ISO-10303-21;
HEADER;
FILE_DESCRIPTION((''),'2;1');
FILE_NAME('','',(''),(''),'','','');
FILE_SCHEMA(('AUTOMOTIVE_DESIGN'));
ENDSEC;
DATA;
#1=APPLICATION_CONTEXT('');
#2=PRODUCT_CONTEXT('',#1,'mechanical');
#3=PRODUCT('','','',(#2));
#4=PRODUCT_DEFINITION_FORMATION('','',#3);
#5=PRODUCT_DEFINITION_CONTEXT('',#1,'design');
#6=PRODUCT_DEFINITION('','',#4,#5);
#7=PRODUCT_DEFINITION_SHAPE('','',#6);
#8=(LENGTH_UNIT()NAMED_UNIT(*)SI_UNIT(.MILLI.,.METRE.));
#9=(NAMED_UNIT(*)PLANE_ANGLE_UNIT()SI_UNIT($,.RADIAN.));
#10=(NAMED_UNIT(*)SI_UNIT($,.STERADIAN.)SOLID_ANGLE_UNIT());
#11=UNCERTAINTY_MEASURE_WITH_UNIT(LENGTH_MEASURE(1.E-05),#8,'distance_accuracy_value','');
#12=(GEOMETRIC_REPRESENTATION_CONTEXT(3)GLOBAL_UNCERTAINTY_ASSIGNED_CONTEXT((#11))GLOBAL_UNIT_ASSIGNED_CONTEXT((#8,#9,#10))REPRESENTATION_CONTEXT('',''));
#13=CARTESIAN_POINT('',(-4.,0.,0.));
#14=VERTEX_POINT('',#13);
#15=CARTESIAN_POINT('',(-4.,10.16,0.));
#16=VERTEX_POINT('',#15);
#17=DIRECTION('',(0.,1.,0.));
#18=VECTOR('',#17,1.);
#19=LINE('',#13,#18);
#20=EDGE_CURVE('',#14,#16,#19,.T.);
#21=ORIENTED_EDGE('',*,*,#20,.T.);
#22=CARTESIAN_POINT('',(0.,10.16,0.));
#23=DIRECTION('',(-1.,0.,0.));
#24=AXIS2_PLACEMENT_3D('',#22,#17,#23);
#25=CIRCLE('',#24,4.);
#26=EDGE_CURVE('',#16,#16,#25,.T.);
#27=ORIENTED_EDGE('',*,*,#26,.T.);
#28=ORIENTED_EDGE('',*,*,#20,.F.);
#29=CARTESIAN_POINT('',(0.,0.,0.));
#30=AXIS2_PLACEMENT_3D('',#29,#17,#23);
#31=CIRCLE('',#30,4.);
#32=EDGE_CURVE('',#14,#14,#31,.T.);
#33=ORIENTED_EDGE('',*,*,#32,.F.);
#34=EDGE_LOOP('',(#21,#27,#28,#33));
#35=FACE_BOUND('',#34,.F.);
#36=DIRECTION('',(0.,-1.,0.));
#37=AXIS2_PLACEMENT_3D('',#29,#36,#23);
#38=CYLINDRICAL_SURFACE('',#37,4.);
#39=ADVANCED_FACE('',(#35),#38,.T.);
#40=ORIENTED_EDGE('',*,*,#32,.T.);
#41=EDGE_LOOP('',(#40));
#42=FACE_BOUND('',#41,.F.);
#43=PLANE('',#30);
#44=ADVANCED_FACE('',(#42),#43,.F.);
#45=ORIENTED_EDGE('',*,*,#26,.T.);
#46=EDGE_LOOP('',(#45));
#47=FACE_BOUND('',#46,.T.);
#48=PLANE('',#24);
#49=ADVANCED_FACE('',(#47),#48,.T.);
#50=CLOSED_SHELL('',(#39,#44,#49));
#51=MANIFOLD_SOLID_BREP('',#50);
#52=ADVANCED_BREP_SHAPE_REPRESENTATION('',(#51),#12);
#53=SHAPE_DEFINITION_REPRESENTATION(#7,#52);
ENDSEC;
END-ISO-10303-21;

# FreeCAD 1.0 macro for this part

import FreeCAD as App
import Part
import Sketcher
from FreeCAD import Vector

doc = App.newDocument("Part")
params = doc.addObject("Spreadsheet::Sheet", "Params")
for row, (alias, value) in enumerate([
    ("sketch1_diameter", "8 mm"),
    ("pad1_length", "10.16 mm"),
], start=1):
    params.set(f"A{row}", alias)
    params.set(f"B{row}", "=" + value)
    params.setAlias(f"B{row}", alias)

body = doc.addObject("PartDesign::Body", "Body")

sketch1 = body.newObject("Sketcher::SketchObject", "Sketch")
sketch1.AttachmentSupport = (doc.getObject("XZ_Plane"), [""])
sketch1.MapMode = "FlatFace"
sketch1.addGeometry(Part.Circle(Vector(0, 0, 0), Vector(0, 0, 1), 4), False)
sketch1.addConstraint(Sketcher.Constraint("Coincident", 0, 3, -1, 1))
sketch1.addConstraint(Sketcher.Constraint("Diameter", 0, 8.0))
sketch1.setExpression("Constraints[1]", "Params.sketch1_diameter")
pad1 = body.newObject("PartDesign::Pad", "Pad")
pad1.Profile = sketch1
pad1.setExpression("Length", "Params.pad1_length")
pad1.Reversed = True

doc.recompute()
